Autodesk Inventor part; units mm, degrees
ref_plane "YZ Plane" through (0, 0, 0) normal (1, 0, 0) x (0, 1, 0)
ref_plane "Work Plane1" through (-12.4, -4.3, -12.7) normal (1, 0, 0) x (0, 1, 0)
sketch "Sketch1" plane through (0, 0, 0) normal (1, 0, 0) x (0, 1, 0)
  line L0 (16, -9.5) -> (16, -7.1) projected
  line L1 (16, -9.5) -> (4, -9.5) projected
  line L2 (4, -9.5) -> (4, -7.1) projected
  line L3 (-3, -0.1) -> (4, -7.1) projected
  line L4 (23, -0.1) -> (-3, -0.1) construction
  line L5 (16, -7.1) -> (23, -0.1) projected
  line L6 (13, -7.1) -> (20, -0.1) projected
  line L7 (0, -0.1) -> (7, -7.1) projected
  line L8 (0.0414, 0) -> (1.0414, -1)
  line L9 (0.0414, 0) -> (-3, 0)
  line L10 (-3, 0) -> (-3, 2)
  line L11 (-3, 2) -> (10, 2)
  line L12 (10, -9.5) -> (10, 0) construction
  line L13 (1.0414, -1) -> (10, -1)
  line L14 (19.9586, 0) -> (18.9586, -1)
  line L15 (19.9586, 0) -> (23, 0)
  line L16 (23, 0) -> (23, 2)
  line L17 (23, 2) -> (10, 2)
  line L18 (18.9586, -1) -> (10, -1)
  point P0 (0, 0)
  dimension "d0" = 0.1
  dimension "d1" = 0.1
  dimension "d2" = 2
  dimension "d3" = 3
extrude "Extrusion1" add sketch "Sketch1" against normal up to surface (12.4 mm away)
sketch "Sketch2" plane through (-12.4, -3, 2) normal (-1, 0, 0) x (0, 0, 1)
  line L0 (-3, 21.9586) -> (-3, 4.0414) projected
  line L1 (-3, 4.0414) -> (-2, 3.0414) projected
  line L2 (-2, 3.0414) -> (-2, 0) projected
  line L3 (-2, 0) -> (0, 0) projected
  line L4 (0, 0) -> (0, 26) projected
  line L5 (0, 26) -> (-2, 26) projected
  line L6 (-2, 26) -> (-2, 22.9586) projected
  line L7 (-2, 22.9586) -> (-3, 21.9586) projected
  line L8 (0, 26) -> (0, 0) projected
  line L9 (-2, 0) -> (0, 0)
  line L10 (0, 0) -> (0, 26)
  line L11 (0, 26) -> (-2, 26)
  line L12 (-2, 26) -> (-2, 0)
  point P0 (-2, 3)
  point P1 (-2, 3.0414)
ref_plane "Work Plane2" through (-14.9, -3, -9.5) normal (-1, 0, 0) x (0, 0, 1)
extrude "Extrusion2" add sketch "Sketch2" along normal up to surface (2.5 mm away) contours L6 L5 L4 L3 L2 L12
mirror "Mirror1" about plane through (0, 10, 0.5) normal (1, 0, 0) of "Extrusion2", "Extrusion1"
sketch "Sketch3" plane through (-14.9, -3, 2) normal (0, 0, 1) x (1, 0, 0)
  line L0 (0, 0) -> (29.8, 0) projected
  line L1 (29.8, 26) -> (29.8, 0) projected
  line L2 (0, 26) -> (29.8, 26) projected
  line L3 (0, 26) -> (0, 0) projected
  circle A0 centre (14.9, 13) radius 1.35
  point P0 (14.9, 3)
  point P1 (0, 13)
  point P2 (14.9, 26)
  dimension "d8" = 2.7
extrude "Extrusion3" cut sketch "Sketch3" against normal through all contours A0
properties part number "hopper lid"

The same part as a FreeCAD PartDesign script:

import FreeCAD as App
import Part
import Sketcher
Q = App.Units.Quantity


def add_polygon(sketch, points):
    """Adds a closed chain of lines whose ends are joined by coincident constraints."""
    first, n = sketch.GeometryCount, len(points)
    for a, b in zip(points, points[1:] + points[:1]):
        sketch.addGeometry(Part.LineSegment(App.Vector(*a, 0), App.Vector(*b, 0)), False)
    for i in range(n):
        sketch.addConstraint(Sketcher.Constraint("Coincident", first + i, 2, first + (i + 1) % n, 1))

doc = App.newDocument("Part")
body = doc.addObject("PartDesign::Body", "Body")

# Sketch on YZ plane
sketch1 = doc.addObject("Sketcher::SketchObject", "Sketch")
body.addObject(sketch1)
sketch1.AttachmentSupport = (doc.YZ_Plane, [""])
sketch1.MapMode = "FlatFace"
add_polygon(sketch1, [(-3, 0), (0, 0), (1, -1), (19, -1), (20, 0), (23, 0), (23, 2), (-3, 2)])  # lines 0-7
sketch1.addConstraint(Sketcher.Constraint("Horizontal", 0))
sketch1.addConstraint(Sketcher.Constraint("Horizontal", 2))
sketch1.addConstraint(Sketcher.Constraint("Horizontal", 4))
sketch1.addConstraint(Sketcher.Constraint("Vertical", 5))
sketch1.addConstraint(Sketcher.Constraint("Horizontal", 6))
sketch1.addConstraint(Sketcher.Constraint("Vertical", 7))
sketch1.addConstraint(Sketcher.Constraint("PointOnObject", 0, 2, -1))
sketch1.addConstraint(Sketcher.Constraint("PointOnObject", 3, 2, -1))
sketch1.addConstraint(Sketcher.Constraint("Perpendicular", 1, 3))
sketch1.addConstraint(Sketcher.Constraint("Equal", 0, 4))
sketch1.addConstraint(Sketcher.Constraint("Equal", 1, 3))
sketch1.addConstraint(Sketcher.Constraint("DistanceY", 5, 1, 5, 2, Q("2 mm")))
sketch1.addConstraint(Sketcher.Constraint("DistanceX", 6, 2, -1, 1, Q("3 mm")))
sketch1.addConstraint(Sketcher.Constraint("DistanceY", 2, 2, 5, 2, Q("3 mm")))
sketch1.addConstraint(Sketcher.Constraint("DistanceX", 6, 2, 6, 1, Q("26 mm")))
sketch1.addConstraint(Sketcher.Constraint("DistanceX", 0, 1, 0, 2, Q("3.0414 mm")))
pad1 = doc.addObject("PartDesign::Pad", "Pad")
body.addObject(pad1)
pad1.Profile = sketch1
pad1.Length = 12.4
pad1.Reversed = True

# Sketch on YZ plane
sketch2 = doc.addObject("Sketcher::SketchObject", "Sketch001")
body.addObject(sketch2)
sketch2.AttachmentSupport = (doc.YZ_Plane, [""])
sketch2.MapMode = "FlatFace"
sketch2.AttachmentOffset = App.Placement(App.Vector(0, 0, -12.4), App.Rotation())
add_polygon(sketch2, [(23, 0), (-3, 0), (-3, 2), (23, 2)])  # lines 0-3
sketch2.addConstraint(Sketcher.Constraint("Horizontal", 0))
sketch2.addConstraint(Sketcher.Constraint("Vertical", 1))
sketch2.addConstraint(Sketcher.Constraint("Horizontal", 2))
sketch2.addConstraint(Sketcher.Constraint("Vertical", 3))
sketch2.addConstraint(Sketcher.Constraint("PointOnObject", 0, 2, -1))
sketch2.addConstraint(Sketcher.Constraint("DistanceX", 0, 2, 0, 1, Q("26 mm")))
sketch2.addConstraint(Sketcher.Constraint("DistanceY", 1, 1, 1, 2, Q("2 mm")))
sketch2.addConstraint(Sketcher.Constraint("DistanceX", 0, 2, -1, 1, Q("3 mm")))
pad2 = doc.addObject("PartDesign::Pad", "Pad001")
body.addObject(pad2)
pad2.Profile = sketch2
pad2.Length = 2.5
pad2.Reversed = True
doc.recompute()

mirrored = doc.addObject("PartDesign::Mirrored", "Mirrored")
body.addObject(mirrored)
mirrored.Originals = [pad2, pad1]
mirrored.MirrorPlane = (doc.YZ_Plane, [""])
body.Tip = mirrored

# Sketch on XY plane
sketch3 = doc.addObject("Sketcher::SketchObject", "Sketch002")
body.addObject(sketch3)
sketch3.AttachmentSupport = (doc.XY_Plane, [""])
sketch3.MapMode = "FlatFace"
sketch3.AttachmentOffset = App.Placement(App.Vector(0, 0, 2), App.Rotation())
sketch3.addGeometry(Part.Circle(App.Vector(0, 10, 0), App.Vector(0, 0, 1), 1.4), False)
sketch3.addConstraint(Sketcher.Constraint("PointOnObject", 0, 3, -2))
sketch3.addConstraint(Sketcher.Constraint("Diameter", 0, Q("2.7 mm")))
sketch3.addConstraint(Sketcher.Constraint("DistanceY", -1, 1, 0, 3, Q("10 mm")))
pocket1 = doc.addObject("PartDesign::Pocket", "Pocket")
body.addObject(pocket1)
pocket1.Profile = sketch3
pocket1.Type = "ThroughAll"

doc.recompute()
